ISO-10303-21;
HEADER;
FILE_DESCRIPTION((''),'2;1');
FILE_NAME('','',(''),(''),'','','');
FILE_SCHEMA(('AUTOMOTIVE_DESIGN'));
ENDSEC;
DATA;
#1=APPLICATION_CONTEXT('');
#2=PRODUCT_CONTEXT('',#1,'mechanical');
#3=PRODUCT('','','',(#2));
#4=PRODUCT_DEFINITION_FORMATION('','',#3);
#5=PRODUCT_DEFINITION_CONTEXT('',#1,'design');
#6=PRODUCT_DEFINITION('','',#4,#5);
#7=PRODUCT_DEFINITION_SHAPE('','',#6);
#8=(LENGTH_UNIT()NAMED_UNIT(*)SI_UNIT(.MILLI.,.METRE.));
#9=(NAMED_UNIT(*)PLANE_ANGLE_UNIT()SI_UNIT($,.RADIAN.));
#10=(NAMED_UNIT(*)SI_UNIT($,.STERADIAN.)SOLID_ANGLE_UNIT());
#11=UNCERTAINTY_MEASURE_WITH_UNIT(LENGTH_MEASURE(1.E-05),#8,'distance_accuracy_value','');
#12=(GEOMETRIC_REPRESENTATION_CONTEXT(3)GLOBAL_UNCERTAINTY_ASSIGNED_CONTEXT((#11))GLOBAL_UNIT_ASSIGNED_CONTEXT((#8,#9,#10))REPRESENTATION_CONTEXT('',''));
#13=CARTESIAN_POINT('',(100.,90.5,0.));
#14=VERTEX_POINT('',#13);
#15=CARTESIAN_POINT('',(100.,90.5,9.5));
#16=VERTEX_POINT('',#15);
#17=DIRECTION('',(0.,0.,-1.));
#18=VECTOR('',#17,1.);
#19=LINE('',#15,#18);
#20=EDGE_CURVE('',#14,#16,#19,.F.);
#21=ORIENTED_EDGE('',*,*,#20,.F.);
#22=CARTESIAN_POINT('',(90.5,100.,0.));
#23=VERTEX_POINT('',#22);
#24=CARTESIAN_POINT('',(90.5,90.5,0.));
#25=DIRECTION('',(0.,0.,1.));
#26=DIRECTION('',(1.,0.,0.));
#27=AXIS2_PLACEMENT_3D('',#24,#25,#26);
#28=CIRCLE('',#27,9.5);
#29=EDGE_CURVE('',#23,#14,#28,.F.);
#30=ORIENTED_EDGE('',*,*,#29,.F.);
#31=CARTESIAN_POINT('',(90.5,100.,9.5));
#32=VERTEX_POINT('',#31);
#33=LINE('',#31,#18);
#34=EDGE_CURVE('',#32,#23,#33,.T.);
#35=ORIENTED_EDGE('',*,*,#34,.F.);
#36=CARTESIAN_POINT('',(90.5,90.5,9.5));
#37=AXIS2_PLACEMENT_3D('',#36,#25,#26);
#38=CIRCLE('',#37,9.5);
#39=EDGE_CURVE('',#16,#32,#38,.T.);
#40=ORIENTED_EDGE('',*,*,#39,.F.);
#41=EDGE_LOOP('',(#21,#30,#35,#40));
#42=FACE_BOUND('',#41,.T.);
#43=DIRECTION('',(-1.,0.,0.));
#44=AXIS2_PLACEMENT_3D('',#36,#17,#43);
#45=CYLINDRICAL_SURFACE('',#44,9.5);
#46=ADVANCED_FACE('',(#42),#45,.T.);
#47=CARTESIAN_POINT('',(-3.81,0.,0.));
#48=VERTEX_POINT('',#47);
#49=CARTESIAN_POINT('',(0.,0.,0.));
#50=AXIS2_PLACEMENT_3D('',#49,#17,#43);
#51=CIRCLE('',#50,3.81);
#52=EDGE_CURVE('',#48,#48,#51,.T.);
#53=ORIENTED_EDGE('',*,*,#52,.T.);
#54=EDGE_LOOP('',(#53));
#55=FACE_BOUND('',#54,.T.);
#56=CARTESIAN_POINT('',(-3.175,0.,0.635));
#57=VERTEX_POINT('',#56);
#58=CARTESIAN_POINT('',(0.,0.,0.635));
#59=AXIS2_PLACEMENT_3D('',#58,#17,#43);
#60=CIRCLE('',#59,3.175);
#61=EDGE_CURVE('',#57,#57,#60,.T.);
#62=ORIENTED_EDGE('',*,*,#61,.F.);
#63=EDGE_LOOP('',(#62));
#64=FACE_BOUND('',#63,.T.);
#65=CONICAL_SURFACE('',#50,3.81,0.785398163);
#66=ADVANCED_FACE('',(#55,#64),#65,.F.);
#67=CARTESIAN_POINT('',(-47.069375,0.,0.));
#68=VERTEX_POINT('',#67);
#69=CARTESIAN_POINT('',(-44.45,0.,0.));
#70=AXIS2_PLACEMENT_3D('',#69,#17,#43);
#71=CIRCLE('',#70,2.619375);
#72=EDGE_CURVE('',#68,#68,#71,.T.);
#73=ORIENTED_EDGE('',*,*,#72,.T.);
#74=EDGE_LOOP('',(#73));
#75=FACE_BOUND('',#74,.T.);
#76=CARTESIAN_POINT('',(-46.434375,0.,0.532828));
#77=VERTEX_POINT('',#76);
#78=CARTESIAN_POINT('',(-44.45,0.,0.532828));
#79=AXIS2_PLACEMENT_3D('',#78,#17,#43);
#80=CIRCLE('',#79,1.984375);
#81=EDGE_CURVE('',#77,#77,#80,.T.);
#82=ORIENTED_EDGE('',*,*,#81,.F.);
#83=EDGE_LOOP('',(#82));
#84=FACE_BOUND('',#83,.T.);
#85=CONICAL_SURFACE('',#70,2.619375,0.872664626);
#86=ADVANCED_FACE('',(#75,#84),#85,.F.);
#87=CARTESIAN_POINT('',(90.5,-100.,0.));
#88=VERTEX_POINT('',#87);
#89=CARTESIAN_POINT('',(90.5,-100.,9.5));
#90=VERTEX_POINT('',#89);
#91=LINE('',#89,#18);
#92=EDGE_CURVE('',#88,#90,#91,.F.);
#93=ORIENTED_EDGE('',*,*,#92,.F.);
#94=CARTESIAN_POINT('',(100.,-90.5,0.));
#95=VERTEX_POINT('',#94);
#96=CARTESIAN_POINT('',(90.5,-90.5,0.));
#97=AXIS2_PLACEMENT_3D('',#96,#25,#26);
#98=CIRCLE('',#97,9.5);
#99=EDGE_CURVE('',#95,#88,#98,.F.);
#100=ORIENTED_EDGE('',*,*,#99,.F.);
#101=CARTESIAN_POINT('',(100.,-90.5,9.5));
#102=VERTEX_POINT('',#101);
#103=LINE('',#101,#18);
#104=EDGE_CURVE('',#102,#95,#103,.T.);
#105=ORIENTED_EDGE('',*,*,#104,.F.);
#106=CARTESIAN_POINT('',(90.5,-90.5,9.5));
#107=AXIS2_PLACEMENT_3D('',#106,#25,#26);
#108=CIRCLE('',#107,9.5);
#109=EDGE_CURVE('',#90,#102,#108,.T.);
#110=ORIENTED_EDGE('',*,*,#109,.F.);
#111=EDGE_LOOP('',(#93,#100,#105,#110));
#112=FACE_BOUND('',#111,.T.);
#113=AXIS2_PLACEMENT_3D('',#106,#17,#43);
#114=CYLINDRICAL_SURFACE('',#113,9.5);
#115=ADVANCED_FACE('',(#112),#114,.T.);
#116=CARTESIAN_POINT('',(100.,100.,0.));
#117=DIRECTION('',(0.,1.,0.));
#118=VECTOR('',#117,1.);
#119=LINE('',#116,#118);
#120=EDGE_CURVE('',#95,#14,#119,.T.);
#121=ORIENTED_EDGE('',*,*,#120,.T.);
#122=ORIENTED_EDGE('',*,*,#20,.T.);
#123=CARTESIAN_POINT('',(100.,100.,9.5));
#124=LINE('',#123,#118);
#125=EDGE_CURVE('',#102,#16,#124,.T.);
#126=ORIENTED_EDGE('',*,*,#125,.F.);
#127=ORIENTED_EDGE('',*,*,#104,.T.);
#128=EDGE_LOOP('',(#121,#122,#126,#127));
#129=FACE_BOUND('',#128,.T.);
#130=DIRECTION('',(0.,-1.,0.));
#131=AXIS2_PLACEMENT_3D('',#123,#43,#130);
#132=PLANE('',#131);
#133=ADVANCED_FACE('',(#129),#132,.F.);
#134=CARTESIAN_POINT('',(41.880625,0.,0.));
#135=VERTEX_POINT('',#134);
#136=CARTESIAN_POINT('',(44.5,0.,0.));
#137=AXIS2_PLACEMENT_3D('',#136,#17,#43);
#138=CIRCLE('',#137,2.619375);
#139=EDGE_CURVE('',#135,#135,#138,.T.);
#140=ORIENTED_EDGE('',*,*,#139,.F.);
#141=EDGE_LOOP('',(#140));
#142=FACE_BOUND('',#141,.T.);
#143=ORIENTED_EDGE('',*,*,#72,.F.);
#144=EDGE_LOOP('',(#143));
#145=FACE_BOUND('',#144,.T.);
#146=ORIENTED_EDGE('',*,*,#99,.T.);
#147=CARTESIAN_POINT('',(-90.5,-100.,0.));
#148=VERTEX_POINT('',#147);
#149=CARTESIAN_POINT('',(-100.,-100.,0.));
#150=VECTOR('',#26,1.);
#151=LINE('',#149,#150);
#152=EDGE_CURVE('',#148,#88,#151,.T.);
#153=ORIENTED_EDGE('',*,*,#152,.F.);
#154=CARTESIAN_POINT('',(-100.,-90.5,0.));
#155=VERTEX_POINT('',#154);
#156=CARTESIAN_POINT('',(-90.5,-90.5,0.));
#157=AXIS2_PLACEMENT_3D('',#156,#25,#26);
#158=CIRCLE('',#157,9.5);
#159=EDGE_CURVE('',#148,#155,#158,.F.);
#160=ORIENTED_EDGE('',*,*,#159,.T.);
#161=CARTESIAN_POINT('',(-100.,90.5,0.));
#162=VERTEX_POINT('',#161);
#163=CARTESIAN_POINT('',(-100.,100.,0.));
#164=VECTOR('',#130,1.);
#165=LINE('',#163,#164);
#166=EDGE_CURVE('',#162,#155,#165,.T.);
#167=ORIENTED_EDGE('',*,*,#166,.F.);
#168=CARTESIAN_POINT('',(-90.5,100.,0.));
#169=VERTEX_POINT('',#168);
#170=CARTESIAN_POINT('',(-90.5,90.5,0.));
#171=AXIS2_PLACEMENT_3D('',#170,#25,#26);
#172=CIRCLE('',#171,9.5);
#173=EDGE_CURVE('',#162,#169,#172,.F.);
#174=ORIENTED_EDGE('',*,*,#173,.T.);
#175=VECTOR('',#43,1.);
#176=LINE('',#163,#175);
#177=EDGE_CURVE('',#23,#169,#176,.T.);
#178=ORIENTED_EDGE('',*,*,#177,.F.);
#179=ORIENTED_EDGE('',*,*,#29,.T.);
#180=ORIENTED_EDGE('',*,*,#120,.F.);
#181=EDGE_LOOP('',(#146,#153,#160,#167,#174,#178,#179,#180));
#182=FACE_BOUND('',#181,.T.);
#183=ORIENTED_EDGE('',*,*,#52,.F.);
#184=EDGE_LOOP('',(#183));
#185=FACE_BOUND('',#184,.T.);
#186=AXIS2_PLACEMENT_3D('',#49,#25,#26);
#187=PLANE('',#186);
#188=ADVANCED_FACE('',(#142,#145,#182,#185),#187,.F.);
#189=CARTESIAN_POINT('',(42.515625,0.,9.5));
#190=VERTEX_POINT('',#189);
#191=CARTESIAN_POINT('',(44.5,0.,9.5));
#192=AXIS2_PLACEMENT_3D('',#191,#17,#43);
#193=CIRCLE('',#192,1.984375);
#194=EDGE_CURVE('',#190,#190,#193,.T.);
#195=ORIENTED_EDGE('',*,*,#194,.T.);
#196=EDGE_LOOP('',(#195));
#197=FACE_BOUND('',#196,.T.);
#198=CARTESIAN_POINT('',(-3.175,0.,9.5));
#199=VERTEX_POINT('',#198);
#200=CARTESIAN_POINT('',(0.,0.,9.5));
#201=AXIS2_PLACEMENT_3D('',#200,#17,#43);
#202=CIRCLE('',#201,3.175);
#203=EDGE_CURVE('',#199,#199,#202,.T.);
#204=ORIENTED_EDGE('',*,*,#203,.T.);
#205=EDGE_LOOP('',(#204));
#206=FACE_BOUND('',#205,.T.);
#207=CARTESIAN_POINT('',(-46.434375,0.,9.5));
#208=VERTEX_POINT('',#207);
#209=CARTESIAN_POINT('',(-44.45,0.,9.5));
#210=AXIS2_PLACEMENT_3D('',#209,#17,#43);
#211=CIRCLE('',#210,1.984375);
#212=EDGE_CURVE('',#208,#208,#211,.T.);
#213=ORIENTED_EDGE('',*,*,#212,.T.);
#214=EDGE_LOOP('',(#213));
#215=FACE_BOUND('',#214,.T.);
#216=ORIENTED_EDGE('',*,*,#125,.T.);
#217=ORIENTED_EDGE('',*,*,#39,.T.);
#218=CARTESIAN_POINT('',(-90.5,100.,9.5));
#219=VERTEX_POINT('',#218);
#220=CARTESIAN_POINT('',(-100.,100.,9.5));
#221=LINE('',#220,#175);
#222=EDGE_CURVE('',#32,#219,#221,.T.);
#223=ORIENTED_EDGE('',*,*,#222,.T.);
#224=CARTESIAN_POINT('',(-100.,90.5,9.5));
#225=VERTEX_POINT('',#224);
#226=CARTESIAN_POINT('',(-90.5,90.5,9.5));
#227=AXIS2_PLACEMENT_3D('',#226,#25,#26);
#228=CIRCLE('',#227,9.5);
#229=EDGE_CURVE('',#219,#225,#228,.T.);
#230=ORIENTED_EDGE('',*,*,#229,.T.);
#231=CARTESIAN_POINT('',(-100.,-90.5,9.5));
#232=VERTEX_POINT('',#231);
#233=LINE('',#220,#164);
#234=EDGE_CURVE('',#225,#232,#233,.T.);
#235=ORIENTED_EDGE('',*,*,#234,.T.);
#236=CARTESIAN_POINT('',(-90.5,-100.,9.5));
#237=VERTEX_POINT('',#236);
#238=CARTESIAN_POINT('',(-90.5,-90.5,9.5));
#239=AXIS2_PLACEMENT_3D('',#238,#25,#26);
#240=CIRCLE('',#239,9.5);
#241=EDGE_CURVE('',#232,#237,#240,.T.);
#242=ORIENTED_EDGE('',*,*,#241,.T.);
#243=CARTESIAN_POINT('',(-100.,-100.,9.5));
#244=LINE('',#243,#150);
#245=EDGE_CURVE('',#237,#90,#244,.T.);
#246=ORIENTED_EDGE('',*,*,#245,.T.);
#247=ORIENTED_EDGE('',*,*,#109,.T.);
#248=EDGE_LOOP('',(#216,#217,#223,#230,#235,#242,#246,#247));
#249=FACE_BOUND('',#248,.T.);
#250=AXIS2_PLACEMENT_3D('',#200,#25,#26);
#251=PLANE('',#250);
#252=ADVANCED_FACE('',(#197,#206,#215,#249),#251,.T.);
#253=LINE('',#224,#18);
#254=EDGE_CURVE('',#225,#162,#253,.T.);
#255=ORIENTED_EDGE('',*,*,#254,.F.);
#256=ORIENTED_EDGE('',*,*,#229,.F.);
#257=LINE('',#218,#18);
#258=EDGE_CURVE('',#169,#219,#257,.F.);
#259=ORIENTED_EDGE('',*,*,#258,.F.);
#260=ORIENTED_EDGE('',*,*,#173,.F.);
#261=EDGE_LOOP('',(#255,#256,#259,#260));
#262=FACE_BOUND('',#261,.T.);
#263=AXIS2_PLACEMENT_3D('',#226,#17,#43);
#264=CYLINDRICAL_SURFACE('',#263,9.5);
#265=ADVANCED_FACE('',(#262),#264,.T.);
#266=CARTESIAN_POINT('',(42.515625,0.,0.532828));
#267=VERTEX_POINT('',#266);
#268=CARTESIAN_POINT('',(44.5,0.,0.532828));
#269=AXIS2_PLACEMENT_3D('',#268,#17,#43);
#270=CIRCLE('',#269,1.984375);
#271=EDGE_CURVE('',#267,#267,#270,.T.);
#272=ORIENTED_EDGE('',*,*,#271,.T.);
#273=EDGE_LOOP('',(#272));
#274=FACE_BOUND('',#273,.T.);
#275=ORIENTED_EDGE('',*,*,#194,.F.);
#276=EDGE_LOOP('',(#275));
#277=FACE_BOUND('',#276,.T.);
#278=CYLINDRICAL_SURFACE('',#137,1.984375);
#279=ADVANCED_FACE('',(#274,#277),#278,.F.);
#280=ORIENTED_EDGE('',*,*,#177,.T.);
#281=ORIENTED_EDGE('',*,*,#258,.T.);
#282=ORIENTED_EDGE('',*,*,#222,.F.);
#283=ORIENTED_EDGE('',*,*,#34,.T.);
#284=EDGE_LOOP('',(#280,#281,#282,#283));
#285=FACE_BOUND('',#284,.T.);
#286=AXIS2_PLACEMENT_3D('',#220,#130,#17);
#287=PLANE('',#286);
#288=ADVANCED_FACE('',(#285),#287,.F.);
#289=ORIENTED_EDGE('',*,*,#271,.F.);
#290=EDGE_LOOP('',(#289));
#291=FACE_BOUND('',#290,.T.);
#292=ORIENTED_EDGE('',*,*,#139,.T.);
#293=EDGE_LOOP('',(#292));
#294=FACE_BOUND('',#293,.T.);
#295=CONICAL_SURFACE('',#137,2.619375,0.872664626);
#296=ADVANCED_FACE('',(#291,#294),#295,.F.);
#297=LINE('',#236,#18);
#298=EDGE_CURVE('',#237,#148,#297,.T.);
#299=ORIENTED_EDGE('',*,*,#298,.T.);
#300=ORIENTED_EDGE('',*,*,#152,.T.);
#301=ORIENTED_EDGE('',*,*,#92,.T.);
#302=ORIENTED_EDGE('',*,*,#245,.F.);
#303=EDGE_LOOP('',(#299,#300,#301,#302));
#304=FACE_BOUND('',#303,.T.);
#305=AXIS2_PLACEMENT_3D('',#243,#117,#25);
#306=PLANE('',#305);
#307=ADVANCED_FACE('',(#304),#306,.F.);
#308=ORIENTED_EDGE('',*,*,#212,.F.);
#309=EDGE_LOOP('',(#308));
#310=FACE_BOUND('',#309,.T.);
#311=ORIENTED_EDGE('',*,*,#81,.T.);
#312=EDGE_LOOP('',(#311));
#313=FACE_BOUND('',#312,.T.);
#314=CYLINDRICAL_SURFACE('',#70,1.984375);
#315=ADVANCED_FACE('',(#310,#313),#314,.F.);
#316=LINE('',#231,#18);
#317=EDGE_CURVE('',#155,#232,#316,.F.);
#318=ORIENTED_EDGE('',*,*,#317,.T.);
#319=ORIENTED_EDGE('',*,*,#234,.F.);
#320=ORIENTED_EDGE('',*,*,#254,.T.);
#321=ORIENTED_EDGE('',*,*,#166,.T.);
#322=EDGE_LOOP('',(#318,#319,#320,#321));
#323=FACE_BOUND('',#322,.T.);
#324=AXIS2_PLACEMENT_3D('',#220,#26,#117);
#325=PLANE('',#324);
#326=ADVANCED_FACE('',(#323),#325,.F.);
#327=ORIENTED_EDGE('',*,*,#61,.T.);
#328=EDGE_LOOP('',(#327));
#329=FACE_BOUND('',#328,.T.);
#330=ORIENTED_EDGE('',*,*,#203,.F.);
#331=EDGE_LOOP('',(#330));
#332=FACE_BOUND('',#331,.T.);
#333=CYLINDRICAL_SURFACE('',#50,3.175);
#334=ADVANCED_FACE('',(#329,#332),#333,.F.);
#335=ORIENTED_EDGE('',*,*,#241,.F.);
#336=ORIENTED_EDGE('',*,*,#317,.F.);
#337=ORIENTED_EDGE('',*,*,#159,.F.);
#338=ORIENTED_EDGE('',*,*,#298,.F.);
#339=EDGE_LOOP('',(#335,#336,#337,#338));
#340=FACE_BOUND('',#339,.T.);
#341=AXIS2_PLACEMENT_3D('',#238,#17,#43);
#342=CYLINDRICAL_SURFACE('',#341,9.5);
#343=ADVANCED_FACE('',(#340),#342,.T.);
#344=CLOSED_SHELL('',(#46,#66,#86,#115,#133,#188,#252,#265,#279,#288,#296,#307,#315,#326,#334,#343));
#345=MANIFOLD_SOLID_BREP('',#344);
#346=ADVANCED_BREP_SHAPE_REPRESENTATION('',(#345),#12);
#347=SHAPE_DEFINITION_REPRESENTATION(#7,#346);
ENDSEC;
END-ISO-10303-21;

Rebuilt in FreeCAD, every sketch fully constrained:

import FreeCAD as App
import Part
import Sketcher


def edges_at(feature, points):
    """Names of the edges that pass closest to the given points."""
    edges = feature.Shape.Edges
    near = lambda p: min(range(len(edges)), key=lambda i: edges[i].distToShape(Part.Vertex(*p))[0])
    return sorted({f"Edge{near(p) + 1}" for p in points})


def add_polygon(sketch, points):
    """Adds a closed chain of lines whose ends are joined by coincident constraints."""
    first, n = sketch.GeometryCount, len(points)
    for a, b in zip(points, points[1:] + points[:1]):
        sketch.addGeometry(Part.LineSegment(App.Vector(*a, 0), App.Vector(*b, 0)), False)
    for i in range(n):
        sketch.addConstraint(Sketcher.Constraint("Coincident", first + i, 2, first + (i + 1) % n, 1))

doc = App.newDocument("Part")
body = doc.addObject("PartDesign::Body", "Body")

sketch1 = body.newObject("Sketcher::SketchObject", "Sketch")
sketch1.AttachmentSupport = (doc.getObject("XY_Plane"), [""])
sketch1.MapMode = "FlatFace"
add_polygon(sketch1, [(-100, 100), (-100, -100), (100, -100), (100, 100)])
sketch1.addConstraint([
    Sketcher.Constraint("Vertical", 0),
    Sketcher.Constraint("Horizontal", 1),
    Sketcher.Constraint("Vertical", 2),
    Sketcher.Constraint("Horizontal", 3),
    Sketcher.Constraint("Symmetric", 0, 2, 2, 2, -1, 1),
    Sketcher.Constraint("Equal", 3, 0),
    Sketcher.Constraint("DistanceX", 1, 1, 1, 2, 200.0),
])
pad1 = body.newObject("PartDesign::Pad", "Pad")
pad1.Profile = sketch1
pad1.Length = 9.5
doc.recompute()

fillet = body.newObject("PartDesign::Fillet", "Fillet")
fillet.Base = (pad1, edges_at(pad1, [
    (100, -100, 4.75),
    (-100, -100, 4.75),
    (-100, 100, 4.75),
    (100, 100, 4.75),
]))
fillet.Radius = 9.5

sketch2 = body.newObject("Sketcher::SketchObject", "Sketch001")
sketch2.AttachmentSupport = (doc.getObject("XY_Plane"), [""])
sketch2.MapMode = "FlatFace"
sketch2.addGeometry(Part.Circle(App.Vector(0, 0, 0), App.Vector(0, 0, 1), 3.2), False)
sketch2.addConstraint([
    Sketcher.Constraint("Coincident", 0, 3, -1, 1),
    Sketcher.Constraint("Diameter", 0, 6.35),
])
doc.recompute()
hole = body.newObject("PartDesign::Hole", "Hole")
hole.Profile = sketch2
hole.ThreadType = "None"
hole.Diameter = 6.35
hole.DepthType = "ThroughAll"
hole.HoleCutType = "Countersink"
hole.HoleCutDiameter = 7.62
hole.HoleCutCountersinkAngle = 90
hole.Reversed = True

sketch3 = body.newObject("Sketcher::SketchObject", "Sketch002")
sketch3.AttachmentSupport = (doc.getObject("XY_Plane"), [""])
sketch3.MapMode = "FlatFace"
sketch3.addGeometry([
    Part.Circle(App.Vector(44.5, 0, 0), App.Vector(0, 0, 1), 2),
    Part.Circle(App.Vector(-44.5, 0, 0), App.Vector(0, 0, 1), 2),
], False)
sketch3.addConstraint([
    Sketcher.Constraint("Equal", 0, 1),
    Sketcher.Constraint("PointOnObject", 0, 3, -1),
    Sketcher.Constraint("PointOnObject", 1, 3, -1),
    Sketcher.Constraint("DistanceX", -1, 1, 0, 3, 44.5),
    Sketcher.Constraint("Diameter", 0, 3.96875),
    Sketcher.Constraint("DistanceX", 1, 3, -1, 1, 44.45),
])
doc.recompute()
hole2 = body.newObject("PartDesign::Hole", "Hole001")
hole2.Profile = sketch3
hole2.ThreadType = "None"
hole2.Diameter = 3.96875
hole2.DepthType = "ThroughAll"
hole2.HoleCutType = "Countersink"
hole2.HoleCutDiameter = 5.23875
hole2.HoleCutCountersinkAngle = 100
hole2.Reversed = True

doc.recompute()
